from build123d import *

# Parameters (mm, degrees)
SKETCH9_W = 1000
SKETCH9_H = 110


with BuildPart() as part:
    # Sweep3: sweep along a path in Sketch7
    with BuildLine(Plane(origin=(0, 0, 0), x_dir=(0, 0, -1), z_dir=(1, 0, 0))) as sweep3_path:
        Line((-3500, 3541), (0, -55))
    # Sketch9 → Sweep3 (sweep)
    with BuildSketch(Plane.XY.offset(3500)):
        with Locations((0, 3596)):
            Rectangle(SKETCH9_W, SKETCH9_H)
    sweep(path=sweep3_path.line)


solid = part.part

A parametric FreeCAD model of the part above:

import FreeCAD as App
import Part
import Sketcher
from FreeCAD import Vector
Q = App.Units.Quantity


def add_polygon(sketch, points):
    """Adds a closed chain of lines whose ends are joined by coincident constraints."""
    first, n = sketch.GeometryCount, len(points)
    for a, b in zip(points, points[1:] + points[:1]):
        sketch.addGeometry(Part.LineSegment(App.Vector(*a, 0), App.Vector(*b, 0)), False)
    for i in range(n):
        sketch.addConstraint(Sketcher.Constraint("Coincident", first + i, 2, first + (i + 1) % n, 1))

doc = App.newDocument("Part")
body = doc.addObject("PartDesign::Body", "Body")

sketch1 = body.newObject("Sketcher::SketchObject", "Sketch")
sketch1.AttachmentSupport = (doc.getObject("XY_Plane"), [""])
sketch1.MapMode = "FlatFace"
sketch1.AttachmentOffset = App.Placement(Vector(0, 0, 3500), App.Rotation())
add_polygon(sketch1, [(-500, 3651), (-500, 3541), (500, 3541), (500, 3651)])
sketch1.addConstraint([
    Sketcher.Constraint("Vertical", 0),
    Sketcher.Constraint("Horizontal", 1),
    Sketcher.Constraint("Vertical", 2),
    Sketcher.Constraint("Horizontal", 3),
    Sketcher.Constraint("DistanceX", 1, 1, 1, 2, Q("1000 mm")),
    Sketcher.Constraint("DistanceY", 0, 2, 0, 1, Q("110 mm")),
    Sketcher.Constraint("DistanceX", 0, 2, -1, 1, Q("500 mm")),
    Sketcher.Constraint("DistanceY", -1, 1, 0, 2, Q("3541 mm")),
])

sketch2 = body.newObject("Sketcher::SketchObject", "Sketch001")
sketch2.Placement = App.Placement(Vector(0, -26.756055, 27.489935), App.Rotation(Vector(0, 0.716607475, 0.697476686), Vector(1.000000001, 0, 0), Vector(0, 0.697476686, -0.716607475), "ZXY"))
sketch2.addGeometry(Part.LineSegment(Vector(4978.675472, 0, 0), Vector(-39.413411, 0, 0)), False)
sketch2.addConstraint([
    Sketcher.Constraint("Horizontal", 0),
    Sketcher.Constraint("PointOnObject", 0, 1, -1),
    Sketcher.Constraint("DistanceX", 0, 2, 0, 1, Q("5018.088883 mm")),
    Sketcher.Constraint("DistanceX", -1, 1, 0, 1, Q("4978.675472 mm")),
])
doc.recompute()

additivepipe = body.newObject("PartDesign::AdditivePipe", "AdditivePipe")
additivepipe.Profile = sketch1
additivepipe.Spine = (sketch2, ["Edge1"])

doc.recompute()
